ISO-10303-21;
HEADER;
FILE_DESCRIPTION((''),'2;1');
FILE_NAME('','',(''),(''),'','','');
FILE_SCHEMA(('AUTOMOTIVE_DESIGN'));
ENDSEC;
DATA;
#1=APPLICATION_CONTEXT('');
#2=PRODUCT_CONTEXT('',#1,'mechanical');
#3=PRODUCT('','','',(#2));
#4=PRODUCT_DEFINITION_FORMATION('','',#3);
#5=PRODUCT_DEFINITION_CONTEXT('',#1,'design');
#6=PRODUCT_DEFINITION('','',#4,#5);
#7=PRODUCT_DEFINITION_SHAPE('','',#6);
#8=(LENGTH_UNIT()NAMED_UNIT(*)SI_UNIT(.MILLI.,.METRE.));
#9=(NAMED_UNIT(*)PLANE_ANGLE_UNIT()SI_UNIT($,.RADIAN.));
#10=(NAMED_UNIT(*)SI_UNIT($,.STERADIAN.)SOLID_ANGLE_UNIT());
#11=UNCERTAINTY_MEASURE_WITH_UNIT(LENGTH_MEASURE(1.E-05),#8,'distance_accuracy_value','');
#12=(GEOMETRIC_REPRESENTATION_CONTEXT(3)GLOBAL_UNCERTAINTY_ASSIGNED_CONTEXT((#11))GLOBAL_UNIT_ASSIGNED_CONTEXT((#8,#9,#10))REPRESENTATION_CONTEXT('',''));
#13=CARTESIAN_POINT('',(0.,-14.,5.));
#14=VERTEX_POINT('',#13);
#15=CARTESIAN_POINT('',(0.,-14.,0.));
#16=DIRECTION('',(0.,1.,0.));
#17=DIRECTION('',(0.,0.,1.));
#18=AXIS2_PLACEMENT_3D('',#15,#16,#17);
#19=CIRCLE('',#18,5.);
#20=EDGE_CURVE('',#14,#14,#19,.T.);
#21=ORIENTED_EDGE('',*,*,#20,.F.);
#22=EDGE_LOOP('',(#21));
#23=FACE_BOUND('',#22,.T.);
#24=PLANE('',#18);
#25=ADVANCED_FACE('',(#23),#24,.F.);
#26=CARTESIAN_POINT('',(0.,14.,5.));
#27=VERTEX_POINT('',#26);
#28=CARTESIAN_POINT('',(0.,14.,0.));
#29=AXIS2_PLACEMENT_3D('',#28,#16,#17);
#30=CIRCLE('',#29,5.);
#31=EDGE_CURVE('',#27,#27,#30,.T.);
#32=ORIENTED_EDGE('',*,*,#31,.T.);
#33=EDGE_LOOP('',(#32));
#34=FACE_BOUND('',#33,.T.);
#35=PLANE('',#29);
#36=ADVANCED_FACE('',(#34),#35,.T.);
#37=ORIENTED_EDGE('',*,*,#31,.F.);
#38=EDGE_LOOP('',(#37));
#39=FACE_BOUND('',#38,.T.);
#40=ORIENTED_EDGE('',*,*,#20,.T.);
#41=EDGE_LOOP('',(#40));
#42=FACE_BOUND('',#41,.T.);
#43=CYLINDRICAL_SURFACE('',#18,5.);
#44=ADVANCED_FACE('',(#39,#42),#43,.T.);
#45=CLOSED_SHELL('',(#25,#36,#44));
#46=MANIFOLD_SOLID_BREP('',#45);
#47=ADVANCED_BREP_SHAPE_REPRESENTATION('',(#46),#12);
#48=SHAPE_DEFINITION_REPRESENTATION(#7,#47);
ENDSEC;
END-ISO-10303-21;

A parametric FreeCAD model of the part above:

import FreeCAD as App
import Part
import Sketcher

doc = App.newDocument("Part")
body = doc.addObject("PartDesign::Body", "Body")

# Sketch on XZ plane
sketch1 = doc.addObject("Sketcher::SketchObject", "Sketch")
body.addObject(sketch1)
sketch1.AttachmentSupport = (doc.XZ_Plane, [""])
sketch1.MapMode = "FlatFace"
sketch1.addGeometry(Part.Circle(App.Vector(0, 0, 0), App.Vector(0, 0, 1), 5), False)
sketch1.addConstraint([
    Sketcher.Constraint("Coincident", 0, 3, -1, 1),
    Sketcher.Constraint("Diameter", 0, 10.0),
])
pad1 = doc.addObject("PartDesign::Pad", "Pad")
body.addObject(pad1)
pad1.Profile = sketch1
pad1.Type = "TwoLengths"
pad1.Length = 14
pad1.Length2 = 14
pad1.Reversed = True

doc.recompute()
